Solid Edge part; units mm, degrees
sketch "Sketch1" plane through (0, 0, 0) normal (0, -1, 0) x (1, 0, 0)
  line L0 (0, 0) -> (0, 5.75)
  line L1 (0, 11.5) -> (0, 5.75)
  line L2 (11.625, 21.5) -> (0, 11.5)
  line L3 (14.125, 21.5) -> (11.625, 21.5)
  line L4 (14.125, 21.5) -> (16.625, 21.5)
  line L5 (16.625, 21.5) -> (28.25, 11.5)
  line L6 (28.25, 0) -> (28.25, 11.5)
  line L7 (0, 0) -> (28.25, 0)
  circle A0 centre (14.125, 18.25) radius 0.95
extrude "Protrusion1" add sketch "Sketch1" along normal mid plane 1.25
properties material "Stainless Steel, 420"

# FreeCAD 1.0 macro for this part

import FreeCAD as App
import Part
import Sketcher

doc = App.newDocument("Part")
params = doc.addObject("Spreadsheet::Sheet", "Params")
for row, (alias, value) in enumerate([
    ("sketch1_diameter", "1.9 mm"),
    ("sketch1_width", "5 mm"),
    ("sketch1_height", "11.5 mm"),
    ("sketch1_width2", "28.25 mm"),
    ("pad1_length", "1.25 mm"),
], start=1):
    params.set(f"A{row}", alias)
    params.set(f"B{row}", "=" + value)
    params.setAlias(f"B{row}", alias)

body = doc.addObject("PartDesign::Body", "Body")

sketch1 = body.newObject("Sketcher::SketchObject", "Sketch")
sketch1.AttachmentSupport = (doc.getObject("XZ_Plane"), [""])
sketch1.MapMode = "FlatFace"
sketch1.addGeometry(Part.LineSegment(App.Vector(0, 11.5, 0), App.Vector(0, 0, 0)), False)
sketch1.addGeometry(Part.LineSegment(App.Vector(0, 0, 0), App.Vector(28.2, 0, 0)), False)
sketch1.addGeometry(Part.LineSegment(App.Vector(28.2, 0, 0), App.Vector(28.2, 11.5, 0)), False)
sketch1.addGeometry(Part.LineSegment(App.Vector(28.2, 11.5, 0), App.Vector(16.6, 21.5, 0)), False)
sketch1.addGeometry(Part.LineSegment(App.Vector(16.6, 21.5, 0), App.Vector(11.6, 21.5, 0)), False)
sketch1.addGeometry(Part.LineSegment(App.Vector(11.6, 21.5, 0), App.Vector(0, 11.5, 0)), False)
sketch1.addGeometry(Part.Circle(App.Vector(14.1, 18.2, 0), App.Vector(0, 0, 1), 0.9), False)
sketch1.addConstraint(Sketcher.Constraint("Coincident", 0, 2, 1, 1))
sketch1.addConstraint(Sketcher.Constraint("Coincident", 1, 2, 2, 1))
sketch1.addConstraint(Sketcher.Constraint("Coincident", 2, 2, 3, 1))
sketch1.addConstraint(Sketcher.Constraint("Coincident", 3, 2, 4, 1))
sketch1.addConstraint(Sketcher.Constraint("Coincident", 4, 2, 5, 1))
sketch1.addConstraint(Sketcher.Constraint("Coincident", 5, 2, 0, 1))
sketch1.addConstraint(Sketcher.Constraint("Vertical", 0))
sketch1.addConstraint(Sketcher.Constraint("Horizontal", 1))
sketch1.addConstraint(Sketcher.Constraint("Vertical", 2))
sketch1.addConstraint(Sketcher.Constraint("Horizontal", 4))
sketch1.addConstraint(Sketcher.Constraint("Coincident", 0, 2, -1, 1))
sketch1.addConstraint(Sketcher.Constraint("Horizontal", 2, 2, 5, 2))
sketch1.addConstraint(Sketcher.Constraint("Equal", 3, 5))
sketch1.addConstraint(Sketcher.Constraint("Diameter", 6, 1.9))
sketch1.addConstraint(Sketcher.Constraint("DistanceX", 4, 2, 4, 1, 5.0))
sketch1.addConstraint(Sketcher.Constraint("DistanceY", 0, 2, 0, 1, 11.5))
sketch1.addConstraint(Sketcher.Constraint("DistanceY", 2, 2, 3, 2, 10.0))
sketch1.addConstraint(Sketcher.Constraint("DistanceX", 1, 1, 1, 2, 28.25))
sketch1.addConstraint(Sketcher.Constraint("DistanceX", 6, 3, 3, 2, 2.5))
sketch1.addConstraint(Sketcher.Constraint("DistanceY", -1, 1, 6, 3, 18.25))
sketch1.setExpression("Constraints[13]", "Params.sketch1_diameter")
sketch1.setExpression("Constraints[14]", "Params.sketch1_width")
sketch1.setExpression("Constraints[15]", "Params.sketch1_height")
sketch1.setExpression("Constraints[17]", "Params.sketch1_width2")
pad1 = body.newObject("PartDesign::Pad", "Pad")
pad1.Profile = sketch1
pad1.setExpression("Length", "Params.pad1_length")
pad1.Midplane = True

doc.recompute()
